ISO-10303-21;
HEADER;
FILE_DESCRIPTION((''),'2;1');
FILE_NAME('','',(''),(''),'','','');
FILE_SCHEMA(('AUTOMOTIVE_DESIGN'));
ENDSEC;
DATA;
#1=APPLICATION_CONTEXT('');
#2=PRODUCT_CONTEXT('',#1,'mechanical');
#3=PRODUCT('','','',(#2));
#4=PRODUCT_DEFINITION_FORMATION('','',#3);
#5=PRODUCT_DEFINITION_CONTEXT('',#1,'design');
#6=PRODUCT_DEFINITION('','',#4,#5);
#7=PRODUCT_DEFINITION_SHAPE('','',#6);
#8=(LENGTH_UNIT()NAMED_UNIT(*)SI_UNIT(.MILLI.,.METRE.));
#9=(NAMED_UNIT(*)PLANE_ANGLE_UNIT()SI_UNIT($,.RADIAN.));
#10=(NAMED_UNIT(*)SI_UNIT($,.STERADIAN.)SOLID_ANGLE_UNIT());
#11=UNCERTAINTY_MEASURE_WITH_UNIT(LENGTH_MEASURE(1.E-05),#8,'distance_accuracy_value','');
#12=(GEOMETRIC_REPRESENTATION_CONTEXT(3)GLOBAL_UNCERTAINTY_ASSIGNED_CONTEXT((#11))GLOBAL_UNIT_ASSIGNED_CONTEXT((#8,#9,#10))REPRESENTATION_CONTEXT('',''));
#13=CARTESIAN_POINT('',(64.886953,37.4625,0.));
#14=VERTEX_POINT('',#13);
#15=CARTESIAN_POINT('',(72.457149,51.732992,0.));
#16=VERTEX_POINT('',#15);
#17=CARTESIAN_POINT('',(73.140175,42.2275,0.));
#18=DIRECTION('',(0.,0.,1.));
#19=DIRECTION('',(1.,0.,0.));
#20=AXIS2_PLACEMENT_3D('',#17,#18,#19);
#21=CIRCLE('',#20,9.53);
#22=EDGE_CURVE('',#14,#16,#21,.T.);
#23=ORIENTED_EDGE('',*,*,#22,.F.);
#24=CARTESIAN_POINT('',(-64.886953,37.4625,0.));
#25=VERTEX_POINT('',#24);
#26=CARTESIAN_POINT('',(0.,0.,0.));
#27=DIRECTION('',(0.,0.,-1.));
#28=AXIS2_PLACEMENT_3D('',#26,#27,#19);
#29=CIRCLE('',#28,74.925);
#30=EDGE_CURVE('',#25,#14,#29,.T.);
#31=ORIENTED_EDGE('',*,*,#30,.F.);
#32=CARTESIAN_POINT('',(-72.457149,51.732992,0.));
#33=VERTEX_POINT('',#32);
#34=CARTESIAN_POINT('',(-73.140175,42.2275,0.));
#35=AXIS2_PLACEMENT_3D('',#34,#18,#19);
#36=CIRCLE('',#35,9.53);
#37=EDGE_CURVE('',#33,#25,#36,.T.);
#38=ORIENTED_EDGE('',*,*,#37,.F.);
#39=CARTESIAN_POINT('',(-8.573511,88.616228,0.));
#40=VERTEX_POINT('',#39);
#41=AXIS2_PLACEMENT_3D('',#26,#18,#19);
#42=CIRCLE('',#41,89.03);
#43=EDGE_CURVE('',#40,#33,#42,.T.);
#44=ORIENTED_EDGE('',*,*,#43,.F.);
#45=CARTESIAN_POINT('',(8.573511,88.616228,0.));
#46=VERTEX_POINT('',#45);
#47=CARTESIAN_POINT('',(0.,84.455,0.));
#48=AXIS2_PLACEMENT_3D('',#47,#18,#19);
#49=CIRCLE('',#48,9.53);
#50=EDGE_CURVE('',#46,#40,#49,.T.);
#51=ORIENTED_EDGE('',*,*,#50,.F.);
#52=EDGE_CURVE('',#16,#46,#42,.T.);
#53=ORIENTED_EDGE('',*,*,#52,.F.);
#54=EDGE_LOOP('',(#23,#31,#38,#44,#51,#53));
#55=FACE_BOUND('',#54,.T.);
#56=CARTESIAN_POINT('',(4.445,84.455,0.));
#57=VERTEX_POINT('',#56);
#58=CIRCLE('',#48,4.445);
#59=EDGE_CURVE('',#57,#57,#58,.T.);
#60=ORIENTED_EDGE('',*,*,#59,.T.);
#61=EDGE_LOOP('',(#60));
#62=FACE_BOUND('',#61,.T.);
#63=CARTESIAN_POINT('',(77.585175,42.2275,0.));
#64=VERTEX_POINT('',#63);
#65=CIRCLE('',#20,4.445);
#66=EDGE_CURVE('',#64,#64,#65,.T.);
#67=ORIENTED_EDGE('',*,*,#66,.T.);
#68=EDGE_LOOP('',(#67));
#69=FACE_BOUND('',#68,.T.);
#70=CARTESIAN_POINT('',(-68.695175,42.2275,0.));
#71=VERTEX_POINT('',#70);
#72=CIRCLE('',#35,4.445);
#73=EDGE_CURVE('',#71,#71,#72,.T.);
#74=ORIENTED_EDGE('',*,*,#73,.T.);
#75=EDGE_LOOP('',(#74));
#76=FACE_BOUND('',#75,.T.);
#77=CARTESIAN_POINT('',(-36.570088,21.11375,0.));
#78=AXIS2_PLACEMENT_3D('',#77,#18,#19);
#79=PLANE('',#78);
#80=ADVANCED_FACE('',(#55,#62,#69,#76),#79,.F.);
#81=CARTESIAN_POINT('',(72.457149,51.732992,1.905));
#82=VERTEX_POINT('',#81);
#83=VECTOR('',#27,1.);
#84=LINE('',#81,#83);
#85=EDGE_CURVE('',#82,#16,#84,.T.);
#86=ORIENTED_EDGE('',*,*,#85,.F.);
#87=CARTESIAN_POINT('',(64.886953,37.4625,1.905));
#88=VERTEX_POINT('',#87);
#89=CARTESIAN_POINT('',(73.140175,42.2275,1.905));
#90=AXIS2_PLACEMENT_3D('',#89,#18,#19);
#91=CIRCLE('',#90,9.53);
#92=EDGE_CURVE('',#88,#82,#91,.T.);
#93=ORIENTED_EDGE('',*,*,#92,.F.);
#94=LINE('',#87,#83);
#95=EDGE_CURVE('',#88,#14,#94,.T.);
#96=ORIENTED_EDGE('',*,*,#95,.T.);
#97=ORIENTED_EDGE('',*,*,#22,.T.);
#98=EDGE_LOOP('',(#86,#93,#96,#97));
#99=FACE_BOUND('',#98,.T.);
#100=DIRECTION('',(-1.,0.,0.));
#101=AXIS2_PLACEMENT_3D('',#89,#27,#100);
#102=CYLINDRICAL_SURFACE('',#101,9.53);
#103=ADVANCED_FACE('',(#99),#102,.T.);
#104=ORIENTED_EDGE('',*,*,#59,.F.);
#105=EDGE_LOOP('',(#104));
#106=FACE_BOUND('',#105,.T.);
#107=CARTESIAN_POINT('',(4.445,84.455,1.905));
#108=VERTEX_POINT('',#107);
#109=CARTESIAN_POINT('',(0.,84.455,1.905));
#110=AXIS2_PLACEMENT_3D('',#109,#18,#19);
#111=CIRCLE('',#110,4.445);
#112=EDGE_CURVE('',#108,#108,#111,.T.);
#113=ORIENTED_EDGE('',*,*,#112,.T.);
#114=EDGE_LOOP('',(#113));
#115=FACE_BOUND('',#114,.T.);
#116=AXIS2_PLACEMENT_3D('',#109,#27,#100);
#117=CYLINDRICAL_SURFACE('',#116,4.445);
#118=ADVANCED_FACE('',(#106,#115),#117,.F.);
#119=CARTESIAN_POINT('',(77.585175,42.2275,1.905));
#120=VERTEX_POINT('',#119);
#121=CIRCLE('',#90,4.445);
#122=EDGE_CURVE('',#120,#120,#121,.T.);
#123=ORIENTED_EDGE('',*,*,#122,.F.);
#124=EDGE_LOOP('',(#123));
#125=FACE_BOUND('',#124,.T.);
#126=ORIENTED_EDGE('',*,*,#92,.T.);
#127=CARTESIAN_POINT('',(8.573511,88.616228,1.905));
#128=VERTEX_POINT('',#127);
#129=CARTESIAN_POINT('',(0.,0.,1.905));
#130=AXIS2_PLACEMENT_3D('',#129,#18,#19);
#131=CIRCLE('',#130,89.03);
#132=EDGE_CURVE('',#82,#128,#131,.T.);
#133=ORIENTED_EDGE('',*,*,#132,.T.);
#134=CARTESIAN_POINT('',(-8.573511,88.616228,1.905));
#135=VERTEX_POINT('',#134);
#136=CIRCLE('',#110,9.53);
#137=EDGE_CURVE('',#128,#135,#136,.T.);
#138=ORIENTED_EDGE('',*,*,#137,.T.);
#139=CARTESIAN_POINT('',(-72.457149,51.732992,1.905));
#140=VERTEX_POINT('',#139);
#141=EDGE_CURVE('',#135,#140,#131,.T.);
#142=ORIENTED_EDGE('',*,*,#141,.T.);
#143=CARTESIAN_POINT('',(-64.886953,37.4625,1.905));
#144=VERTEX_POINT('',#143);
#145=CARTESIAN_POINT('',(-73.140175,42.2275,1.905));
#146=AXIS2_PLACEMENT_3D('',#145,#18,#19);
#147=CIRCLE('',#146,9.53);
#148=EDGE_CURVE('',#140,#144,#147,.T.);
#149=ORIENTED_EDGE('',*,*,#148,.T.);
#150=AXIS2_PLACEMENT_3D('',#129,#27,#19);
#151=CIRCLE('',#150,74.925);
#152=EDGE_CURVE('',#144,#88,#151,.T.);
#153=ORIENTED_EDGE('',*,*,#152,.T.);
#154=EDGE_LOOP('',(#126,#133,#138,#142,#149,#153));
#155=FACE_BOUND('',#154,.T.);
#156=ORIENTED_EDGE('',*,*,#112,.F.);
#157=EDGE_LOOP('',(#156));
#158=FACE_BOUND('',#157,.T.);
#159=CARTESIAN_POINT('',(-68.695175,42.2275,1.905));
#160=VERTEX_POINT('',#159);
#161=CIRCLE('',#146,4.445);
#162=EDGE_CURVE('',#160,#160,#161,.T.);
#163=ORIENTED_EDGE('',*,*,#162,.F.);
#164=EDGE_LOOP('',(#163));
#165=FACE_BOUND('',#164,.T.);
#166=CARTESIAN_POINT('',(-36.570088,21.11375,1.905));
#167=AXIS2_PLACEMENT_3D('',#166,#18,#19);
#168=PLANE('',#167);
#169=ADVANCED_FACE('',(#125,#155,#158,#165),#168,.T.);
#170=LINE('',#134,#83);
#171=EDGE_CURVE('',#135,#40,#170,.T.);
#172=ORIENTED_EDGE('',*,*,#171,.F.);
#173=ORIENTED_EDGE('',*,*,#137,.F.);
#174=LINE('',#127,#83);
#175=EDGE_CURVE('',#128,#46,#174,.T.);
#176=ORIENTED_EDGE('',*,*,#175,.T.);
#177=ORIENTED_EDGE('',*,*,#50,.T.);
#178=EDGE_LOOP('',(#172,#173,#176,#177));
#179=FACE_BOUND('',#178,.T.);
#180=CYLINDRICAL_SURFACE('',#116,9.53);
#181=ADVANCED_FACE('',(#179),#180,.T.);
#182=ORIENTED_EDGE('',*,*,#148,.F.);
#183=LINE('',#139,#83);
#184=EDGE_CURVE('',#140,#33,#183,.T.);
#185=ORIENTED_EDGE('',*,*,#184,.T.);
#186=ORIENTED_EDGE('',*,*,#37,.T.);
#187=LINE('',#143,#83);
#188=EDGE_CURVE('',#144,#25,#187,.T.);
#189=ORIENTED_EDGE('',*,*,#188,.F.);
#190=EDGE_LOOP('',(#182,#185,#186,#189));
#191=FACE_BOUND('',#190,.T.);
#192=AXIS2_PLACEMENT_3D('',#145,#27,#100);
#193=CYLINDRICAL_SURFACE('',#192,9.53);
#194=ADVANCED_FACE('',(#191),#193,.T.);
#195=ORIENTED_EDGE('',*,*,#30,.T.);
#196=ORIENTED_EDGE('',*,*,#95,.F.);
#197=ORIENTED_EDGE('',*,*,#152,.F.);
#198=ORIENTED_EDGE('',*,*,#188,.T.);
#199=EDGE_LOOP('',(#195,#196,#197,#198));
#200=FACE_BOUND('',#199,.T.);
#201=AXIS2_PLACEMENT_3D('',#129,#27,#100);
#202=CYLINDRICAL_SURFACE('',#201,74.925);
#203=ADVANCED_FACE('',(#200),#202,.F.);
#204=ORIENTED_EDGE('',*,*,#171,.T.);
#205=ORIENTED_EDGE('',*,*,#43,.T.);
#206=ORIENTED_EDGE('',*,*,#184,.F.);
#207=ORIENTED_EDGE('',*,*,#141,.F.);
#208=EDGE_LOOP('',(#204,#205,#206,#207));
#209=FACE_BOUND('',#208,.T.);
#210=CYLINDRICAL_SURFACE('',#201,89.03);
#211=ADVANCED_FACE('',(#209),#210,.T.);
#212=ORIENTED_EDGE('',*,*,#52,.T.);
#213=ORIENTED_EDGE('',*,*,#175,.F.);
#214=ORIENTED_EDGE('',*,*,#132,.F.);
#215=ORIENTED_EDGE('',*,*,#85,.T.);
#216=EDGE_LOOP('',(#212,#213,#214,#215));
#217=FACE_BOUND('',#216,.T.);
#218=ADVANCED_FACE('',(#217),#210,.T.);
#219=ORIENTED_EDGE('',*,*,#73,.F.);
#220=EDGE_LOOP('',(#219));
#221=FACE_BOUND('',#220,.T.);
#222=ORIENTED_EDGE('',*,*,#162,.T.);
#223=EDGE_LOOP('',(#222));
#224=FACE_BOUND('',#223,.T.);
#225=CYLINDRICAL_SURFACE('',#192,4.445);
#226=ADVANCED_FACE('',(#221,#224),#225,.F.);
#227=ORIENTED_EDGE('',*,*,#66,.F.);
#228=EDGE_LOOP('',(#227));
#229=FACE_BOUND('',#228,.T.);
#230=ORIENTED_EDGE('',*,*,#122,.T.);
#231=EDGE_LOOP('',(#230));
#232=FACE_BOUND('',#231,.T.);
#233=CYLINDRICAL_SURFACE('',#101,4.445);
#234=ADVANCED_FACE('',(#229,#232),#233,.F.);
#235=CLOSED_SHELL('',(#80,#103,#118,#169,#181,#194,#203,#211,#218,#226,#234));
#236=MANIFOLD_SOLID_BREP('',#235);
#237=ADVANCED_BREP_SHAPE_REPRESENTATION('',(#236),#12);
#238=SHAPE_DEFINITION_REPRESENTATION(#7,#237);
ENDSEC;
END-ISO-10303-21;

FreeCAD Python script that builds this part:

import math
import FreeCAD as App
import Part
import Sketcher
from FreeCAD import Vector
Q = App.Units.Quantity

doc = App.newDocument("Part")
body = doc.addObject("PartDesign::Body", "Body")

sketch1 = doc.addObject("Sketcher::SketchObject", "Sketch")
body.addObject(sketch1)
sketch1.AttachmentSupport = (doc.XY_Plane, [""])
sketch1.MapMode = "FlatFace"
sketch1.addGeometry(Part.ArcOfCircle(Part.Circle(Vector(-73.140175, 42.2275, 0), Vector(0, 0, 1), 9.53), math.radians(85.89002), math.radians(330)), False)
sketch1.addGeometry(Part.ArcOfCircle(Part.Circle(Vector(0, 0, 0), Vector(0, 0, 1), 74.925), math.radians(30), math.radians(150)), False)
sketch1.addGeometry(Part.ArcOfCircle(Part.Circle(Vector(73.140175, 42.2275, 0), Vector(0, 0, 1), 9.53), math.radians(-150), math.radians(94.10998)), False)
sketch1.addGeometry(Part.ArcOfCircle(Part.Circle(Vector(0, 0, 0), Vector(0, 0, 1), 89.03), math.radians(35.526097), math.radians(84.473903)), False)
sketch1.addGeometry(Part.ArcOfCircle(Part.Circle(Vector(0, 84.455, 0), Vector(0, 0, 1), 9.53), math.radians(25.89002), math.radians(154.10998)), False)
sketch1.addGeometry(Part.ArcOfCircle(Part.Circle(Vector(0, 0, 0), Vector(0, 0, 1), 89.03), math.radians(95.526097), math.radians(144.473903)), False)
sketch1.addGeometry(Part.Circle(Vector(-73.140175, 42.2275, 0), Vector(0, 0, 1), 4.445), False)
sketch1.addGeometry(Part.Circle(Vector(73.140175, 42.2275, 0), Vector(0, 0, 1), 4.445), False)
sketch1.addGeometry(Part.Circle(Vector(0, 84.455, 0), Vector(0, 0, 1), 4.445), False)
sketch1.addConstraint(Sketcher.Constraint("Tangent", 0, 2, 1, 2))
sketch1.addConstraint(Sketcher.Constraint("Tangent", 1, 1, 2, 1))
sketch1.addConstraint(Sketcher.Constraint("Coincident", 2, 2, 3, 1))
sketch1.addConstraint(Sketcher.Constraint("Coincident", 3, 2, 4, 1))
sketch1.addConstraint(Sketcher.Constraint("Coincident", 4, 2, 5, 1))
sketch1.addConstraint(Sketcher.Constraint("Coincident", 5, 2, 0, 1))
sketch1.addConstraint(Sketcher.Constraint("Coincident", 1, 3, -1, 1))
sketch1.addConstraint(Sketcher.Constraint("Coincident", 3, 3, -1, 1))
sketch1.addConstraint(Sketcher.Constraint("Coincident", 5, 3, -1, 1))
sketch1.addConstraint(Sketcher.Constraint("Coincident", 6, 3, 0, 3))
sketch1.addConstraint(Sketcher.Constraint("Coincident", 7, 3, 2, 3))
sketch1.addConstraint(Sketcher.Constraint("Coincident", 8, 3, 4, 3))
sketch1.addConstraint(Sketcher.Constraint("Equal", 0, 2))
sketch1.addConstraint(Sketcher.Constraint("Equal", 2, 4))
sketch1.addConstraint(Sketcher.Constraint("Equal", 3, 5))
sketch1.addConstraint(Sketcher.Constraint("Equal", 6, 7))
sketch1.addConstraint(Sketcher.Constraint("Equal", 7, 8))
sketch1.addConstraint(Sketcher.Constraint("PointOnObject", 4, 3, -2))
sketch1.addConstraint(Sketcher.Constraint("Horizontal", 0, 3, 2, 3))
sketch1.addConstraint(Sketcher.Constraint("Diameter", 6, Q("0.35 in")))
sketch1.addConstraint(Sketcher.Constraint("Radius", 0, Q("9.53 mm")))
sketch1.addConstraint(Sketcher.Constraint("Radius", 1, Q("74.925 mm")))
sketch1.addConstraint(Sketcher.Constraint("Radius", 3, Q("89.03 mm")))
sketch1.addConstraint(Sketcher.Constraint("DistanceY", -1, 1, 4, 3, Q("3.325 in")))
sketch1.addConstraint(Sketcher.Constraint("DistanceY", -1, 1, 0, 3, Q("1.6625 in")))
pad1 = doc.addObject("PartDesign::Pad", "Pad")
body.addObject(pad1)
pad1.Profile = sketch1
pad1.Length = Q("0.075 in")

doc.recompute()
